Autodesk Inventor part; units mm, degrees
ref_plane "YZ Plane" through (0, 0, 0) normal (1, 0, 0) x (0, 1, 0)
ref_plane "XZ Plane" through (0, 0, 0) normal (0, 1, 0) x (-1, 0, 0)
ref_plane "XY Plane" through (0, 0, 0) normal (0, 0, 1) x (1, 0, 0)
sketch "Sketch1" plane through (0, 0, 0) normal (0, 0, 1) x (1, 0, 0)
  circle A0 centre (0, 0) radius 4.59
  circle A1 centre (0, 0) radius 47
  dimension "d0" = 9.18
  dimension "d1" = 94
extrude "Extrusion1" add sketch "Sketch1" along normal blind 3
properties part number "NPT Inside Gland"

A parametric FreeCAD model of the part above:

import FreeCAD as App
import Part
import Sketcher

V = App.Vector
Q = App.Units.Quantity

doc = App.newDocument("Part")
body = doc.addObject("PartDesign::Body", "Body")

# Sketch on XY plane
sketch1 = body.newObject("Sketcher::SketchObject", "Sketch")
sketch1.AttachmentSupport = (doc.getObject("XY_Plane"), [""])
sketch1.MapMode = "FlatFace"
sketch1.addGeometry(Part.Circle(V(0, 0, 0), V(0, 0, 1), 47), False)
sketch1.addGeometry(Part.Circle(V(0, 0, 0), V(0, 0, 1), 4.59), False)
sketch1.addConstraint(Sketcher.Constraint("Coincident", 0, 3, -1, 1))
sketch1.addConstraint(Sketcher.Constraint("Coincident", 1, 3, -1, 1))
sketch1.addConstraint(Sketcher.Constraint("Diameter", 0, Q("94 mm")))
sketch1.addConstraint(Sketcher.Constraint("Diameter", 1, Q("9.18 mm")))
pad1 = body.newObject("PartDesign::Pad", "Pad")
pad1.Profile = sketch1
pad1.Length = 3

doc.recompute()
